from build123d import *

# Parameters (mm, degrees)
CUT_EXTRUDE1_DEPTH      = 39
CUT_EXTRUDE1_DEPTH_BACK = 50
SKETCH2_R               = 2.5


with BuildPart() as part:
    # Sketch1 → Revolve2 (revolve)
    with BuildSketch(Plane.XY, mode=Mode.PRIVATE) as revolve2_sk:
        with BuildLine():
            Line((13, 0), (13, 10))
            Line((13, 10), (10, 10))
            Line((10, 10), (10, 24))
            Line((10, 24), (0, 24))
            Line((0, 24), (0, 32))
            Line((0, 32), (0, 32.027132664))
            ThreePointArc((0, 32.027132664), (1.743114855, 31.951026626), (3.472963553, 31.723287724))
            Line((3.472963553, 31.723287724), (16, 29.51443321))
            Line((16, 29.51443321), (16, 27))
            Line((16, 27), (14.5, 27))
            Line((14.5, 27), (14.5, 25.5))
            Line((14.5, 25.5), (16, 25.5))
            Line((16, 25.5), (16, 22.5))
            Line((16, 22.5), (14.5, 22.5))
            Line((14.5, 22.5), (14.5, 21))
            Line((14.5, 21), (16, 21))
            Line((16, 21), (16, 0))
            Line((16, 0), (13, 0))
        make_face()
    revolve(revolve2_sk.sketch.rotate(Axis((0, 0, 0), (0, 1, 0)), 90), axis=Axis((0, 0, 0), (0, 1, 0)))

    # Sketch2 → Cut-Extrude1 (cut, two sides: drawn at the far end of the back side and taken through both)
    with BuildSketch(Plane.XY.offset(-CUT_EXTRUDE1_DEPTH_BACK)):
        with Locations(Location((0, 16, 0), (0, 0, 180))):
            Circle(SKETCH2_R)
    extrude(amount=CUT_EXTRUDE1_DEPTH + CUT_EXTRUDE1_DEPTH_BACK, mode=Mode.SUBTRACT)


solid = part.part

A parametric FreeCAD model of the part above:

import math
import FreeCAD as App
import Part
import Sketcher

V = App.Vector
Q = App.Units.Quantity

doc = App.newDocument("Part")
params = doc.addObject("Spreadsheet::Sheet", "Params")
for row, (alias, value) in enumerate([
    ("sketch1_radius", "20 mm"),
    ("sketch1_width", "3 mm"),
    ("sketch1_width2", "10 mm"),
    ("sketch1_height", "21 mm"),
    ("sketch1_height2", "14 mm"),
    ("revolution_angle", "360 deg"),
    ("sketch2_diameter", "5 mm"),
], start=1):
    params.set(f"A{row}", alias)
    params.set(f"B{row}", "=" + value)
    params.setAlias(f"B{row}", alias)

body = doc.addObject("PartDesign::Body", "Body")

sketch1 = body.newObject("Sketcher::SketchObject", "Sketch")
sketch1.AttachmentSupport = (doc.getObject("XY_Plane"), [""])
sketch1.MapMode = "FlatFace"
sketch1.addGeometry([
    Part.LineSegment(V(13, 10, 0), V(13, 0, 0)),
    Part.LineSegment(V(13, 0, 0), V(16, 0, 0)),
    Part.LineSegment(V(16, 0, 0), V(16, 21, 0)),
    Part.LineSegment(V(16, 21, 0), V(14.5, 21, 0)),
    Part.LineSegment(V(14.5, 21, 0), V(14.5, 22.5, 0)),
    Part.LineSegment(V(14.5, 22.5, 0), V(16, 22.5, 0)),
    Part.LineSegment(V(16, 22.5, 0), V(16, 25.5, 0)),
    Part.LineSegment(V(16, 25.5, 0), V(14.5, 25.5, 0)),
    Part.LineSegment(V(14.5, 25.5, 0), V(14.5, 27, 0)),
    Part.LineSegment(V(14.5, 27, 0), V(16, 27, 0)),
    Part.LineSegment(V(16, 27, 0), V(16, 29.5, 0)),
    Part.LineSegment(V(16, 29.5, 0), V(3.5, 31.7, 0)),
    Part.ArcOfCircle(Part.Circle(V(0, 12, 0), V(0, 0, 1), 20), math.radians(80), math.radians(90)),
    Part.LineSegment(V(0, 32, 0), V(0, 24, 0)),
    Part.LineSegment(V(0, 24, 0), V(10, 24, 0)),
    Part.LineSegment(V(10, 24, 0), V(10, 10, 0)),
    Part.LineSegment(V(10, 10, 0), V(13, 10, 0)),
], False)
sketch1.addConstraint([
    Sketcher.Constraint("Coincident", 0, 2, 1, 1),
    Sketcher.Constraint("Coincident", 1, 2, 2, 1),
    Sketcher.Constraint("Coincident", 2, 2, 3, 1),
    Sketcher.Constraint("Coincident", 3, 2, 4, 1),
    Sketcher.Constraint("Coincident", 4, 2, 5, 1),
    Sketcher.Constraint("Coincident", 5, 2, 6, 1),
    Sketcher.Constraint("Coincident", 6, 2, 7, 1),
    Sketcher.Constraint("Coincident", 7, 2, 8, 1),
    Sketcher.Constraint("Coincident", 8, 2, 9, 1),
    Sketcher.Constraint("Coincident", 9, 2, 10, 1),
    Sketcher.Constraint("Coincident", 10, 2, 11, 1),
    Sketcher.Constraint("Tangent", 11, 2, 12, 1),
    Sketcher.Constraint("Coincident", 12, 2, 13, 1),
    Sketcher.Constraint("Coincident", 13, 2, 14, 1),
    Sketcher.Constraint("Coincident", 14, 2, 15, 1),
    Sketcher.Constraint("Coincident", 15, 2, 16, 1),
    Sketcher.Constraint("Coincident", 16, 2, 0, 1),
    Sketcher.Constraint("Vertical", 0),
    Sketcher.Constraint("Horizontal", 1),
    Sketcher.Constraint("Vertical", 2),
    Sketcher.Constraint("Horizontal", 3),
    Sketcher.Constraint("Vertical", 4),
    Sketcher.Constraint("Horizontal", 5),
    Sketcher.Constraint("Vertical", 6),
    Sketcher.Constraint("Horizontal", 7),
    Sketcher.Constraint("Vertical", 8),
    Sketcher.Constraint("Horizontal", 9),
    Sketcher.Constraint("Vertical", 10),
    Sketcher.Constraint("Vertical", 13),
    Sketcher.Constraint("Horizontal", 14),
    Sketcher.Constraint("Vertical", 15),
    Sketcher.Constraint("Horizontal", 16),
    Sketcher.Constraint("PointOnObject", 12, 3, -2),
    Sketcher.Constraint("PointOnObject", 0, 2, -1),
    Sketcher.Constraint("PointOnObject", 12, 2, -2),
    Sketcher.Constraint("Vertical", 2, 2, 5, 2),
    Sketcher.Constraint("Vertical", 4, 2, 7, 2),
    Sketcher.Constraint("Vertical", 6, 2, 9, 2),
    Sketcher.Constraint("Equal", 1, 16),
    Sketcher.Constraint("Equal", 14, 0),
    Sketcher.Constraint("Equal", 9, 4),
    Sketcher.Constraint("Equal", 16, 6),
    Sketcher.Constraint("Equal", 4, 8),
    Sketcher.Constraint("Radius", 12, Q("20 mm")),
    Sketcher.Constraint("DistanceX", 1, 1, 1, 2, Q("3 mm")),
    Sketcher.Constraint("DistanceX", 14, 1, 14, 2, Q("10 mm")),
    Sketcher.Constraint("DistanceY", 2, 1, 2, 2, Q("21 mm")),
    Sketcher.Constraint("DistanceY", 15, 2, 15, 1, Q("14 mm")),
    Sketcher.Constraint("Angle", 11, Q("170 deg")),
    Sketcher.Constraint("DistanceX", 3, 2, 3, 1, Q("1.5 mm")),
    Sketcher.Constraint("DistanceY", 10, 1, 10, 2, Q("2.514433 mm")),
])
sketch1.setExpression("Constraints[43]", "Params.sketch1_radius")
sketch1.setExpression("Constraints[44]", "Params.sketch1_width")
sketch1.setExpression("Constraints[45]", "Params.sketch1_width2")
sketch1.setExpression("Constraints[46]", "Params.sketch1_height")
sketch1.setExpression("Constraints[47]", "Params.sketch1_height2")
revolution = body.newObject("PartDesign::Revolution", "Revolution")
revolution.Profile = sketch1
revolution.ReferenceAxis = (sketch1, ["V_Axis"])
revolution.setExpression("Angle", "Params.revolution_angle")

sketch2 = body.newObject("Sketcher::SketchObject", "Sketch001")
sketch2.AttachmentSupport = (doc.getObject("XY_Plane"), [""])
sketch2.MapMode = "FlatFace"
sketch2.addGeometry(Part.Circle(V(0, 16, 0), V(0, 0, 1), 2.5), False)
sketch2.addConstraint([
    Sketcher.Constraint("PointOnObject", 0, 3, -2),
    Sketcher.Constraint("Diameter", 0, Q("5 mm")),
    Sketcher.Constraint("DistanceY", -1, 1, 0, 3, Q("16 mm")),
])
sketch2.setExpression("Constraints[1]", "Params.sketch2_diameter")
pocket1 = body.newObject("PartDesign::Pocket", "Pocket")
pocket1.Profile = sketch2
pocket1.Type = "ThroughAll"
pocket1.Midplane = True

doc.recompute()
